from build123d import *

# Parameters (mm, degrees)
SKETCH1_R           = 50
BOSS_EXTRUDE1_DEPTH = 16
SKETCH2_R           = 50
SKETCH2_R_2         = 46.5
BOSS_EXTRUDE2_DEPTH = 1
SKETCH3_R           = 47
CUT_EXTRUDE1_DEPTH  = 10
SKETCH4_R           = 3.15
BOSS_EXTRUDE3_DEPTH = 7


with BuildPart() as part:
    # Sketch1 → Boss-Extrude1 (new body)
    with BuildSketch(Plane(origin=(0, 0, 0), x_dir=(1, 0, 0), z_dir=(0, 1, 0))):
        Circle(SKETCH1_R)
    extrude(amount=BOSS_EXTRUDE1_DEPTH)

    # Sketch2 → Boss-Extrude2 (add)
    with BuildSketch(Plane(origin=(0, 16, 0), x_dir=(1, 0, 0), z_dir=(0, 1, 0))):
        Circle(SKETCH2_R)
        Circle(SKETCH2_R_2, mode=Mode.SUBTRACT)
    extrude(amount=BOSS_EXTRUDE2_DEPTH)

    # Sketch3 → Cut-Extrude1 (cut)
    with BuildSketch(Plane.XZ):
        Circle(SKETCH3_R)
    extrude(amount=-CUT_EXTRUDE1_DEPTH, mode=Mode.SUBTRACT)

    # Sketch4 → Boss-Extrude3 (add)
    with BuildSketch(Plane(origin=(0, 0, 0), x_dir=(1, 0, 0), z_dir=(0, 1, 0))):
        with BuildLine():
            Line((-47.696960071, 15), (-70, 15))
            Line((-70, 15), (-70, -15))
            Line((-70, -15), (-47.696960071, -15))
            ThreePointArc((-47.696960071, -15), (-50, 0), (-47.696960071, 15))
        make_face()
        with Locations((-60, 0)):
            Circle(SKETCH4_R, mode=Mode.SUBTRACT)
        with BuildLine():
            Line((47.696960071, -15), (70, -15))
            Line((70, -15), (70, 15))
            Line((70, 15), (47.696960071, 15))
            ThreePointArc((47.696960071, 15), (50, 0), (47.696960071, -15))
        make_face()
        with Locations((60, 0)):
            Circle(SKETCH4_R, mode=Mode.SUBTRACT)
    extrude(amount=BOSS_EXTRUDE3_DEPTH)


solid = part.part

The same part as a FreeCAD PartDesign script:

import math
import FreeCAD as App
import Part
import Sketcher
Q = App.Units.Quantity

doc = App.newDocument("Part")
body = doc.addObject("PartDesign::Body", "Body")

# Sketch on XZ plane
sketch1 = body.newObject("Sketcher::SketchObject", "Sketch")
sketch1.AttachmentSupport = (doc.getObject("XZ_Plane"), [""])
sketch1.MapMode = "FlatFace"
sketch1.addGeometry(Part.Circle(App.Vector(0, 0, 0), App.Vector(0, 0, 1), 50), False)
sketch1.addConstraint([
    Sketcher.Constraint("Coincident", 0, 3, -1, 1),
    Sketcher.Constraint("Diameter", 0, Q("100 mm")),
])
pad1 = body.newObject("PartDesign::Pad", "Pad")
pad1.Profile = sketch1
pad1.Length = 16
pad1.Reversed = True

# Sketch on XZ plane
sketch2 = body.newObject("Sketcher::SketchObject", "Sketch001")
sketch2.AttachmentSupport = (doc.getObject("XZ_Plane"), [""])
sketch2.MapMode = "FlatFace"
sketch2.AttachmentOffset = App.Placement(App.Vector(0, 0, -16), App.Rotation())
sketch2.addGeometry([
    Part.Circle(App.Vector(0, 0, 0), App.Vector(0, 0, 1), 50),
    Part.Circle(App.Vector(0, 0, 0), App.Vector(0, 0, 1), 46),
], False)
sketch2.addConstraint([
    Sketcher.Constraint("Coincident", 0, 3, -1, 1),
    Sketcher.Constraint("Coincident", 1, 3, -1, 1),
    Sketcher.Constraint("Diameter", 0, Q("100 mm")),
    Sketcher.Constraint("Diameter", 1, Q("93 mm")),
])
pad2 = body.newObject("PartDesign::Pad", "Pad001")
pad2.Profile = sketch2
pad2.Length = 1
pad2.Reversed = True

# Sketch on XZ plane
sketch3 = body.newObject("Sketcher::SketchObject", "Sketch002")
sketch3.AttachmentSupport = (doc.getObject("XZ_Plane"), [""])
sketch3.MapMode = "FlatFace"
sketch3.addGeometry(Part.Circle(App.Vector(0, 0, 0), App.Vector(0, 0, 1), 47), False)
sketch3.addConstraint([
    Sketcher.Constraint("Coincident", 0, 3, -1, 1),
    Sketcher.Constraint("Diameter", 0, Q("94 mm")),
])
pocket1 = body.newObject("PartDesign::Pocket", "Pocket")
pocket1.Profile = sketch3
pocket1.Length = 10

# Sketch on XZ plane
sketch4 = body.newObject("Sketcher::SketchObject", "Sketch003")
sketch4.AttachmentSupport = (doc.getObject("XZ_Plane"), [""])
sketch4.MapMode = "FlatFace"
sketch4.addGeometry([
    Part.LineSegment(App.Vector(-47.7, -15, 0), App.Vector(-70, -15, 0)),  # 0
    Part.LineSegment(App.Vector(-70, -15, 0), App.Vector(-70, 15, 0)),  # 1
    Part.LineSegment(App.Vector(-70, 15, 0), App.Vector(-47.7, 15, 0)),  # 2
    Part.ArcOfCircle(Part.Circle(App.Vector(0, 0, 0), App.Vector(0, 0, 1), 50), math.radians(163), math.radians(197)),  # 3
    Part.Circle(App.Vector(-60, 0, 0), App.Vector(0, 0, 1), 3.1),  # 4
    Part.LineSegment(App.Vector(47.7, 15, 0), App.Vector(70, 15, 0)),  # 5
    Part.LineSegment(App.Vector(70, 15, 0), App.Vector(70, -15, 0)),  # 6
    Part.LineSegment(App.Vector(70, -15, 0), App.Vector(47.7, -15, 0)),  # 7
    Part.ArcOfCircle(Part.Circle(App.Vector(0, 0, 0), App.Vector(0, 0, 1), 50), math.radians(-17), math.radians(17)),  # 8
    Part.Circle(App.Vector(60, 0, 0), App.Vector(0, 0, 1), 3.1),  # 9
], False)
sketch4.addConstraint([
    Sketcher.Constraint("Coincident", 0, 2, 1, 1),
    Sketcher.Constraint("Coincident", 1, 2, 2, 1),
    Sketcher.Constraint("Coincident", 2, 2, 3, 1),
    Sketcher.Constraint("Coincident", 3, 2, 0, 1),
    Sketcher.Constraint("Coincident", 5, 2, 6, 1),
    Sketcher.Constraint("Coincident", 6, 2, 7, 1),
    Sketcher.Constraint("Coincident", 7, 2, 8, 1),
    Sketcher.Constraint("Coincident", 8, 2, 5, 1),
    Sketcher.Constraint("Horizontal", 0),
    Sketcher.Constraint("Vertical", 1),
    Sketcher.Constraint("Horizontal", 2),
    Sketcher.Constraint("Horizontal", 5),
    Sketcher.Constraint("Vertical", 6),
    Sketcher.Constraint("Horizontal", 7),
    Sketcher.Constraint("Coincident", 3, 3, -1, 1),
    Sketcher.Constraint("Coincident", 8, 3, -1, 1),
    Sketcher.Constraint("Equal", 3, 8),
    Sketcher.Constraint("Equal", 4, 9),
    Sketcher.Constraint("Symmetric", 4, 3, 9, 3, -1, 1),
    Sketcher.Constraint("Symmetric", 0, 2, 5, 2, -1, 1),
    Sketcher.Constraint("PointOnObject", 4, 3, -1),
    Sketcher.Constraint("Horizontal", 2, 2, 5, 2),
    Sketcher.Constraint("Horizontal", 3, 2, 6, 2),
    Sketcher.Constraint("Radius", 3, Q("50 mm")),
    Sketcher.Constraint("Diameter", 4, Q("6.3 mm")),
    Sketcher.Constraint("DistanceY", 1, 1, 1, 2, Q("30 mm")),
    Sketcher.Constraint("DistanceX", 4, 3, -1, 1, Q("60 mm")),
    Sketcher.Constraint("DistanceX", 0, 2, -1, 1, Q("70 mm")),
])
pad3 = body.newObject("PartDesign::Pad", "Pad002")
pad3.Profile = sketch4
pad3.Length = 7
pad3.Reversed = True

doc.recompute()
